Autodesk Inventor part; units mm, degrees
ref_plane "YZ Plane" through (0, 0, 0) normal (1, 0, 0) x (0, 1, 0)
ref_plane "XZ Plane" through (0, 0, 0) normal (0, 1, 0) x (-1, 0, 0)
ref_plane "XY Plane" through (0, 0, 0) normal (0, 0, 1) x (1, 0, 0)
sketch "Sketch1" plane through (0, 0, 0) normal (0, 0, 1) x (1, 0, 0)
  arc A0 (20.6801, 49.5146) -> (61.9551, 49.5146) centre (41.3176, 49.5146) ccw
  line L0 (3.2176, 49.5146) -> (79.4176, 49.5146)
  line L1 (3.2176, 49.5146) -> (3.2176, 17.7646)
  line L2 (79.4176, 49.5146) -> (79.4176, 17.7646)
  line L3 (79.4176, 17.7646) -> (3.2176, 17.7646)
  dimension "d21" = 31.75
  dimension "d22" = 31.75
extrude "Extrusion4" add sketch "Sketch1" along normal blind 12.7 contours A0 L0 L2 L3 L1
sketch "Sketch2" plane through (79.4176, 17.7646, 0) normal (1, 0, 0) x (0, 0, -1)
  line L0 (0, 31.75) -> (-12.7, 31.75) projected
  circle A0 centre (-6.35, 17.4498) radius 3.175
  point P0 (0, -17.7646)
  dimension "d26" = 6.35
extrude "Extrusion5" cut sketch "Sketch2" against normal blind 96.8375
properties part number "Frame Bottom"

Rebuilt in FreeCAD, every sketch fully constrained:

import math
import FreeCAD as App
import Part
import Sketcher

V = App.Vector
Q = App.Units.Quantity

doc = App.newDocument("Part")
body = doc.addObject("PartDesign::Body", "Body")

# Sketch on XY plane
sketch1 = doc.addObject("Sketcher::SketchObject", "Sketch")
body.addObject(sketch1)
sketch1.AttachmentSupport = (doc.XY_Plane, [""])
sketch1.MapMode = "FlatFace"
sketch1.addGeometry([
    Part.ArcOfCircle(Part.Circle(V(41, 50, 0), V(0, 0, 1), 21), math.radians(180), math.radians(360)),  # 0
    Part.LineSegment(V(21, 50, 0), V(3, 50, 0)),  # 1
    Part.LineSegment(V(3, 50, 0), V(3, 18, 0)),  # 2
    Part.LineSegment(V(3, 18, 0), V(79, 18, 0)),  # 3
    Part.LineSegment(V(79, 18, 0), V(79, 50, 0)),  # 4
    Part.LineSegment(V(79, 50, 0), V(62, 50, 0)),  # 5
], False)
sketch1.addConstraint([
    Sketcher.Constraint("Coincident", 0, 1, 1, 1),
    Sketcher.Constraint("Coincident", 1, 2, 2, 1),
    Sketcher.Constraint("Coincident", 2, 2, 3, 1),
    Sketcher.Constraint("Coincident", 3, 2, 4, 1),
    Sketcher.Constraint("Coincident", 4, 2, 5, 1),
    Sketcher.Constraint("Coincident", 5, 2, 0, 2),
    Sketcher.Constraint("Horizontal", 1),
    Sketcher.Constraint("Vertical", 2),
    Sketcher.Constraint("Horizontal", 3),
    Sketcher.Constraint("Vertical", 4),
    Sketcher.Constraint("Horizontal", 5),
    Sketcher.Constraint("Horizontal", 1, 2, 4, 2),
    Sketcher.Constraint("Equal", 1, 5),
    Sketcher.Constraint("DistanceY", 2, 2, 2, 1, Q("1.25 in")),
    Sketcher.Constraint("DistanceX", 3, 1, 3, 2, Q("3 in")),
    Sketcher.Constraint("DistanceY", 2, 2, 0, 3, Q("1.25 in")),
    Sketcher.Constraint("Radius", 0, Q("0.8125 in")),
    Sketcher.Constraint("DistanceY", -1, 1, 0, 3, Q("1.9494 in")),
    Sketcher.Constraint("DistanceX", -1, 1, 0, 3, Q("41.3176 mm")),
])
pad1 = doc.addObject("PartDesign::Pad", "Pad")
body.addObject(pad1)
pad1.Profile = sketch1
pad1.Length = Q("0.5 in")

# Sketch on YZ plane
sketch2 = doc.addObject("Sketcher::SketchObject", "Sketch001")
body.addObject(sketch2)
sketch2.AttachmentSupport = (doc.YZ_Plane, [""])
sketch2.MapMode = "FlatFace"
sketch2.AttachmentOffset = App.Placement(V(0, 0, 79.4176), App.Rotation())
sketch2.addGeometry(Part.Circle(V(35.2, 6.3, 0), V(0, 0, 1), 3.2), False)
sketch2.addConstraint([
    Sketcher.Constraint("Diameter", 0, Q("0.25 in")),
    Sketcher.Constraint("DistanceY", -1, 1, 0, 3, Q("0.25 in")),
    Sketcher.Constraint("DistanceX", -1, 1, 0, 3, Q("1.3864 in")),
])
pocket1 = doc.addObject("PartDesign::Pocket", "Pocket")
body.addObject(pocket1)
pocket1.Profile = sketch2
pocket1.Length = Q("3.8125 in")

doc.recompute()
